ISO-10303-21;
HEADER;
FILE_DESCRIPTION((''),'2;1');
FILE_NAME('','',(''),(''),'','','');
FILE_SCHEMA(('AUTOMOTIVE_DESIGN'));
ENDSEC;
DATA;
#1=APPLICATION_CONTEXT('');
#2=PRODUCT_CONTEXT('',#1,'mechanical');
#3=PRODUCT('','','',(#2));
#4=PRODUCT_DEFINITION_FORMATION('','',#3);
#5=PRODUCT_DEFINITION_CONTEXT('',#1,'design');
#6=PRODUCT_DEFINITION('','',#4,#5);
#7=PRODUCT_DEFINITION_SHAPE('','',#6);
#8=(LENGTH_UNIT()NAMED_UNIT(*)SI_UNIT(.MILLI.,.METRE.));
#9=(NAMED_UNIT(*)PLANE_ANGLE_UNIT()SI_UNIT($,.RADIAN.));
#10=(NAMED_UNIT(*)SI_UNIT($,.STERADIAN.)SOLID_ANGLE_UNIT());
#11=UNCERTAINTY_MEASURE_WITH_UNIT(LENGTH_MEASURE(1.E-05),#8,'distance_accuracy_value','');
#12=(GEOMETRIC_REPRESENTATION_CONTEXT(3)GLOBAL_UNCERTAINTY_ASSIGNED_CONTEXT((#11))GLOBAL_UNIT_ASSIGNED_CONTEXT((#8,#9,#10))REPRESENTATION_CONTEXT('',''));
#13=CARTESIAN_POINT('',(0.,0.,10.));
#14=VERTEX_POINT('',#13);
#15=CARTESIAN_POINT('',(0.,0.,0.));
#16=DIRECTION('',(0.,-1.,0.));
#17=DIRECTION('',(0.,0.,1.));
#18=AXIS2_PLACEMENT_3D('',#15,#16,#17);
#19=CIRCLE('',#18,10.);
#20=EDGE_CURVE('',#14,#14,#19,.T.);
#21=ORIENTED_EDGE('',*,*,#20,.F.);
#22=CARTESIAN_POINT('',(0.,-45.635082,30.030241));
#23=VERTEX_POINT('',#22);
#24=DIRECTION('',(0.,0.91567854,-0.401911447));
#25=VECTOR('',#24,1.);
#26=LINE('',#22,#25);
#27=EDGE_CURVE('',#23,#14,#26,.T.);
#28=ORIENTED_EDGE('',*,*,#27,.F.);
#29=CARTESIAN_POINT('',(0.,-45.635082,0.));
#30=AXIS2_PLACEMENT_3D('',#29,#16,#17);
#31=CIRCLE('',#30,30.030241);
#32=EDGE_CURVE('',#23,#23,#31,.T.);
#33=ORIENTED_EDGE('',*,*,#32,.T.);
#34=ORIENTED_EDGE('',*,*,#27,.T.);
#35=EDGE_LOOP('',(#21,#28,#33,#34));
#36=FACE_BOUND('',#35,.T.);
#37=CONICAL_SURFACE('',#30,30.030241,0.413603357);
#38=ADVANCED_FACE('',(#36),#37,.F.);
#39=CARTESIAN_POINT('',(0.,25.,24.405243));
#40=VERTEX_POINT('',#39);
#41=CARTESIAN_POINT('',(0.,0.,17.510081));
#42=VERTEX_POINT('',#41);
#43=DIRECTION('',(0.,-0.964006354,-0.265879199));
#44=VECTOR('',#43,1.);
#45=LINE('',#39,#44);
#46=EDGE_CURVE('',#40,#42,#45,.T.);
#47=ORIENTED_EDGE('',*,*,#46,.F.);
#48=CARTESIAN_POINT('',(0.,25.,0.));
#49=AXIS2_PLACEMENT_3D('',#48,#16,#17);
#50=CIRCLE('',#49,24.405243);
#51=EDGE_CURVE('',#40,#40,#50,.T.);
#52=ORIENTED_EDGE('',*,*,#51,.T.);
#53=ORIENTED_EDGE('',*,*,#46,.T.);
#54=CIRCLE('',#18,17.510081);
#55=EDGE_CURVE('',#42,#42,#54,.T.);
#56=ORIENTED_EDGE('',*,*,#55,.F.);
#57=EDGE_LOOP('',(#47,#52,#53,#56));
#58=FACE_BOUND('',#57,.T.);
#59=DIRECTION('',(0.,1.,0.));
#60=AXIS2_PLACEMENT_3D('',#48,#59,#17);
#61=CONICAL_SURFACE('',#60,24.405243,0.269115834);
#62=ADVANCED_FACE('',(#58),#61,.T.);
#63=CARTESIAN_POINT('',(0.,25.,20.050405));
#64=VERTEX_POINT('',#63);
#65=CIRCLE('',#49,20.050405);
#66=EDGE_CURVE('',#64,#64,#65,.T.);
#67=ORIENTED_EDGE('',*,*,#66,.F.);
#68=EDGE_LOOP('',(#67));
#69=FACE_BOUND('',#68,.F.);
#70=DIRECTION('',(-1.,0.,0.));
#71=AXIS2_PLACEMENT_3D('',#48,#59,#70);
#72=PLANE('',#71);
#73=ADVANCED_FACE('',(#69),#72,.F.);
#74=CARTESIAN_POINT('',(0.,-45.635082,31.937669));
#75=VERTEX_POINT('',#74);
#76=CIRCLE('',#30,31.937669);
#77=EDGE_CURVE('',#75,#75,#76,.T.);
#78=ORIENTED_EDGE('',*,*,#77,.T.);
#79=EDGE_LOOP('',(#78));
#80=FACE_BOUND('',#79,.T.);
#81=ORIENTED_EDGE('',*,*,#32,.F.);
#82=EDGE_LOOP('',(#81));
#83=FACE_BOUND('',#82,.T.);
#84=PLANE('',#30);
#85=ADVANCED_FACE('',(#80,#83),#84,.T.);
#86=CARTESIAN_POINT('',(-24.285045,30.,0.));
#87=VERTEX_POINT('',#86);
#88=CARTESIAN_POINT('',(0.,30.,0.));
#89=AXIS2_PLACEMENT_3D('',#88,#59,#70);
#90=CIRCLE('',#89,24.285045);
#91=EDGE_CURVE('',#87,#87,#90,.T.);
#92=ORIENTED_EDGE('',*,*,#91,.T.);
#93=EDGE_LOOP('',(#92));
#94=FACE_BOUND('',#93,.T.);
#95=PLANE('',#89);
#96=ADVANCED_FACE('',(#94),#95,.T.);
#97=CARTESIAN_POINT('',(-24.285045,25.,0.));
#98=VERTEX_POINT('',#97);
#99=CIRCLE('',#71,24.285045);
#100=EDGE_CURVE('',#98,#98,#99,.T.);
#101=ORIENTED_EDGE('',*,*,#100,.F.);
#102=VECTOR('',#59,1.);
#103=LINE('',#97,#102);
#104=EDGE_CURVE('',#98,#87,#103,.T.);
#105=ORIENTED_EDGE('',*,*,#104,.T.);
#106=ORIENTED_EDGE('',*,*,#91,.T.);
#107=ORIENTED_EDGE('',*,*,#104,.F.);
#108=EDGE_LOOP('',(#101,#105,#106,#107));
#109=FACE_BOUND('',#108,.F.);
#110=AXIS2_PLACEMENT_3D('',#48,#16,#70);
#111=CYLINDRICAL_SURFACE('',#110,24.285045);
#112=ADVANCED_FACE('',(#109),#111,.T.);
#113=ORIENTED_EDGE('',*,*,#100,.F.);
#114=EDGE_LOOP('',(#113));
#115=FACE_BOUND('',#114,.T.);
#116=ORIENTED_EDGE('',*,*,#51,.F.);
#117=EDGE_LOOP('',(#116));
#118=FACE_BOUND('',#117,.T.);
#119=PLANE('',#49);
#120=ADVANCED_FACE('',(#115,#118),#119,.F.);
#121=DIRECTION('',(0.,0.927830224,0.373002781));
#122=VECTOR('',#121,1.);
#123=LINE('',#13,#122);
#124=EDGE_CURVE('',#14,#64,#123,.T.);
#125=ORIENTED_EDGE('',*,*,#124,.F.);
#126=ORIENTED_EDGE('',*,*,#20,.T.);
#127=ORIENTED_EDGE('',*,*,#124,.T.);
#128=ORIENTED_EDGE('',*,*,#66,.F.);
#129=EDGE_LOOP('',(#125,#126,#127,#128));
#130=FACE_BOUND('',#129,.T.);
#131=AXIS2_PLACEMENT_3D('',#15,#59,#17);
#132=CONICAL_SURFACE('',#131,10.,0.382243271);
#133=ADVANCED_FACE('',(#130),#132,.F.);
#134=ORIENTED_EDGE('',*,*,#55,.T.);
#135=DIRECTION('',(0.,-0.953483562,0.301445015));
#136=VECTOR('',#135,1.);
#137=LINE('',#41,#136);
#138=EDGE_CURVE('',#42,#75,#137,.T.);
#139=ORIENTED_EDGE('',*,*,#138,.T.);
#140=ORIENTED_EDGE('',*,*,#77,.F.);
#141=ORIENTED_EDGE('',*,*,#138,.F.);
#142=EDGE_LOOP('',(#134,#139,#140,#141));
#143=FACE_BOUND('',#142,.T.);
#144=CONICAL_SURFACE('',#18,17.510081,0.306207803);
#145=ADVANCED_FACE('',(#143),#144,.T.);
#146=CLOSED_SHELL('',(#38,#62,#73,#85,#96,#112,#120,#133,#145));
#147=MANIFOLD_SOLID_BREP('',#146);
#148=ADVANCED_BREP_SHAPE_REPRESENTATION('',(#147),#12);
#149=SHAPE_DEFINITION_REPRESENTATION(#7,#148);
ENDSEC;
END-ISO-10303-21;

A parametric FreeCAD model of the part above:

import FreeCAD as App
import Part
import Sketcher

V = App.Vector

doc = App.newDocument("Part")
body = doc.addObject("PartDesign::Body", "Body")

# Sketch on YZ plane
sketch1 = body.newObject("Sketcher::SketchObject", "Sketch")
sketch1.AttachmentSupport = (doc.getObject("YZ_Plane"), [""])
sketch1.MapMode = "FlatFace"
sketch1.addGeometry([
    Part.LineSegment(V(0, 10, 0), V(25, 20.050405, 0)),  # 0
    Part.LineSegment(V(25, 20.050405, 0), V(25, 24.405243, 0)),  # 1
    Part.LineSegment(V(25, 24.405243, 0), V(0, 17.510081, 0)),  # 2
    Part.LineSegment(V(0, 17.510081, 0), V(-45.635082, 31.937669, 0)),  # 3
    Part.LineSegment(V(-45.635082, 31.937669, 0), V(-45.635082, 30.030241, 0)),  # 4
    Part.LineSegment(V(-45.635082, 30.030241, 0), V(0, 10, 0)),  # 5
], False)
sketch1.addConstraint([
    Sketcher.Constraint("Coincident", 0, 2, 1, 1),
    Sketcher.Constraint("Coincident", 1, 2, 2, 1),
    Sketcher.Constraint("Coincident", 2, 2, 3, 1),
    Sketcher.Constraint("Coincident", 3, 2, 4, 1),
    Sketcher.Constraint("Coincident", 4, 2, 5, 1),
    Sketcher.Constraint("Coincident", 5, 2, 0, 1),
    Sketcher.Constraint("Vertical", 1),
    Sketcher.Constraint("Vertical", 4),
    Sketcher.Constraint("PointOnObject", 2, 2, -2),
    Sketcher.Constraint("PointOnObject", 5, 2, -2),
    Sketcher.Constraint("DistanceX", -1, 1, 0, 2, 25.0),
    Sketcher.Constraint("DistanceY", -1, 1, 5, 2, 10.0),
    Sketcher.Constraint("DistanceY", 1, 2, 4, 2, 5.624998),
    Sketcher.Constraint("Distance", 2, 25.933439),
    Sketcher.Constraint("Distance", 5, 49.837448),
    Sketcher.Constraint("DistanceY", 1, 1, 1, 2, 4.354838),
    Sketcher.Constraint("DistanceY", 4, 2, 4, 1, 1.907428),
    Sketcher.Constraint("DistanceY", -1, 1, 2, 2, 17.510081),
])
revolution = body.newObject("PartDesign::Revolution", "Revolution")
revolution.Profile = sketch1
revolution.ReferenceAxis = (sketch1, ["H_Axis"])
revolution.Angle = 360

# Sketch on XZ plane
sketch2 = body.newObject("Sketcher::SketchObject", "Sketch001")
sketch2.AttachmentSupport = (doc.getObject("XZ_Plane"), [""])
sketch2.MapMode = "FlatFace"
sketch2.AttachmentOffset = App.Placement(V(0, 0, -25), App.Rotation())
sketch2.addGeometry(Part.Circle(V(0, 0, 0), V(0, 0, 1), 24.285045), False)
sketch2.addConstraint([
    Sketcher.Constraint("Coincident", 0, 3, -1, 1),
    Sketcher.Constraint("Diameter", 0, 48.57009),
])
pad1 = body.newObject("PartDesign::Pad", "Pad")
pad1.Profile = sketch2
pad1.Length = 5
pad1.Reversed = True

doc.recompute()
